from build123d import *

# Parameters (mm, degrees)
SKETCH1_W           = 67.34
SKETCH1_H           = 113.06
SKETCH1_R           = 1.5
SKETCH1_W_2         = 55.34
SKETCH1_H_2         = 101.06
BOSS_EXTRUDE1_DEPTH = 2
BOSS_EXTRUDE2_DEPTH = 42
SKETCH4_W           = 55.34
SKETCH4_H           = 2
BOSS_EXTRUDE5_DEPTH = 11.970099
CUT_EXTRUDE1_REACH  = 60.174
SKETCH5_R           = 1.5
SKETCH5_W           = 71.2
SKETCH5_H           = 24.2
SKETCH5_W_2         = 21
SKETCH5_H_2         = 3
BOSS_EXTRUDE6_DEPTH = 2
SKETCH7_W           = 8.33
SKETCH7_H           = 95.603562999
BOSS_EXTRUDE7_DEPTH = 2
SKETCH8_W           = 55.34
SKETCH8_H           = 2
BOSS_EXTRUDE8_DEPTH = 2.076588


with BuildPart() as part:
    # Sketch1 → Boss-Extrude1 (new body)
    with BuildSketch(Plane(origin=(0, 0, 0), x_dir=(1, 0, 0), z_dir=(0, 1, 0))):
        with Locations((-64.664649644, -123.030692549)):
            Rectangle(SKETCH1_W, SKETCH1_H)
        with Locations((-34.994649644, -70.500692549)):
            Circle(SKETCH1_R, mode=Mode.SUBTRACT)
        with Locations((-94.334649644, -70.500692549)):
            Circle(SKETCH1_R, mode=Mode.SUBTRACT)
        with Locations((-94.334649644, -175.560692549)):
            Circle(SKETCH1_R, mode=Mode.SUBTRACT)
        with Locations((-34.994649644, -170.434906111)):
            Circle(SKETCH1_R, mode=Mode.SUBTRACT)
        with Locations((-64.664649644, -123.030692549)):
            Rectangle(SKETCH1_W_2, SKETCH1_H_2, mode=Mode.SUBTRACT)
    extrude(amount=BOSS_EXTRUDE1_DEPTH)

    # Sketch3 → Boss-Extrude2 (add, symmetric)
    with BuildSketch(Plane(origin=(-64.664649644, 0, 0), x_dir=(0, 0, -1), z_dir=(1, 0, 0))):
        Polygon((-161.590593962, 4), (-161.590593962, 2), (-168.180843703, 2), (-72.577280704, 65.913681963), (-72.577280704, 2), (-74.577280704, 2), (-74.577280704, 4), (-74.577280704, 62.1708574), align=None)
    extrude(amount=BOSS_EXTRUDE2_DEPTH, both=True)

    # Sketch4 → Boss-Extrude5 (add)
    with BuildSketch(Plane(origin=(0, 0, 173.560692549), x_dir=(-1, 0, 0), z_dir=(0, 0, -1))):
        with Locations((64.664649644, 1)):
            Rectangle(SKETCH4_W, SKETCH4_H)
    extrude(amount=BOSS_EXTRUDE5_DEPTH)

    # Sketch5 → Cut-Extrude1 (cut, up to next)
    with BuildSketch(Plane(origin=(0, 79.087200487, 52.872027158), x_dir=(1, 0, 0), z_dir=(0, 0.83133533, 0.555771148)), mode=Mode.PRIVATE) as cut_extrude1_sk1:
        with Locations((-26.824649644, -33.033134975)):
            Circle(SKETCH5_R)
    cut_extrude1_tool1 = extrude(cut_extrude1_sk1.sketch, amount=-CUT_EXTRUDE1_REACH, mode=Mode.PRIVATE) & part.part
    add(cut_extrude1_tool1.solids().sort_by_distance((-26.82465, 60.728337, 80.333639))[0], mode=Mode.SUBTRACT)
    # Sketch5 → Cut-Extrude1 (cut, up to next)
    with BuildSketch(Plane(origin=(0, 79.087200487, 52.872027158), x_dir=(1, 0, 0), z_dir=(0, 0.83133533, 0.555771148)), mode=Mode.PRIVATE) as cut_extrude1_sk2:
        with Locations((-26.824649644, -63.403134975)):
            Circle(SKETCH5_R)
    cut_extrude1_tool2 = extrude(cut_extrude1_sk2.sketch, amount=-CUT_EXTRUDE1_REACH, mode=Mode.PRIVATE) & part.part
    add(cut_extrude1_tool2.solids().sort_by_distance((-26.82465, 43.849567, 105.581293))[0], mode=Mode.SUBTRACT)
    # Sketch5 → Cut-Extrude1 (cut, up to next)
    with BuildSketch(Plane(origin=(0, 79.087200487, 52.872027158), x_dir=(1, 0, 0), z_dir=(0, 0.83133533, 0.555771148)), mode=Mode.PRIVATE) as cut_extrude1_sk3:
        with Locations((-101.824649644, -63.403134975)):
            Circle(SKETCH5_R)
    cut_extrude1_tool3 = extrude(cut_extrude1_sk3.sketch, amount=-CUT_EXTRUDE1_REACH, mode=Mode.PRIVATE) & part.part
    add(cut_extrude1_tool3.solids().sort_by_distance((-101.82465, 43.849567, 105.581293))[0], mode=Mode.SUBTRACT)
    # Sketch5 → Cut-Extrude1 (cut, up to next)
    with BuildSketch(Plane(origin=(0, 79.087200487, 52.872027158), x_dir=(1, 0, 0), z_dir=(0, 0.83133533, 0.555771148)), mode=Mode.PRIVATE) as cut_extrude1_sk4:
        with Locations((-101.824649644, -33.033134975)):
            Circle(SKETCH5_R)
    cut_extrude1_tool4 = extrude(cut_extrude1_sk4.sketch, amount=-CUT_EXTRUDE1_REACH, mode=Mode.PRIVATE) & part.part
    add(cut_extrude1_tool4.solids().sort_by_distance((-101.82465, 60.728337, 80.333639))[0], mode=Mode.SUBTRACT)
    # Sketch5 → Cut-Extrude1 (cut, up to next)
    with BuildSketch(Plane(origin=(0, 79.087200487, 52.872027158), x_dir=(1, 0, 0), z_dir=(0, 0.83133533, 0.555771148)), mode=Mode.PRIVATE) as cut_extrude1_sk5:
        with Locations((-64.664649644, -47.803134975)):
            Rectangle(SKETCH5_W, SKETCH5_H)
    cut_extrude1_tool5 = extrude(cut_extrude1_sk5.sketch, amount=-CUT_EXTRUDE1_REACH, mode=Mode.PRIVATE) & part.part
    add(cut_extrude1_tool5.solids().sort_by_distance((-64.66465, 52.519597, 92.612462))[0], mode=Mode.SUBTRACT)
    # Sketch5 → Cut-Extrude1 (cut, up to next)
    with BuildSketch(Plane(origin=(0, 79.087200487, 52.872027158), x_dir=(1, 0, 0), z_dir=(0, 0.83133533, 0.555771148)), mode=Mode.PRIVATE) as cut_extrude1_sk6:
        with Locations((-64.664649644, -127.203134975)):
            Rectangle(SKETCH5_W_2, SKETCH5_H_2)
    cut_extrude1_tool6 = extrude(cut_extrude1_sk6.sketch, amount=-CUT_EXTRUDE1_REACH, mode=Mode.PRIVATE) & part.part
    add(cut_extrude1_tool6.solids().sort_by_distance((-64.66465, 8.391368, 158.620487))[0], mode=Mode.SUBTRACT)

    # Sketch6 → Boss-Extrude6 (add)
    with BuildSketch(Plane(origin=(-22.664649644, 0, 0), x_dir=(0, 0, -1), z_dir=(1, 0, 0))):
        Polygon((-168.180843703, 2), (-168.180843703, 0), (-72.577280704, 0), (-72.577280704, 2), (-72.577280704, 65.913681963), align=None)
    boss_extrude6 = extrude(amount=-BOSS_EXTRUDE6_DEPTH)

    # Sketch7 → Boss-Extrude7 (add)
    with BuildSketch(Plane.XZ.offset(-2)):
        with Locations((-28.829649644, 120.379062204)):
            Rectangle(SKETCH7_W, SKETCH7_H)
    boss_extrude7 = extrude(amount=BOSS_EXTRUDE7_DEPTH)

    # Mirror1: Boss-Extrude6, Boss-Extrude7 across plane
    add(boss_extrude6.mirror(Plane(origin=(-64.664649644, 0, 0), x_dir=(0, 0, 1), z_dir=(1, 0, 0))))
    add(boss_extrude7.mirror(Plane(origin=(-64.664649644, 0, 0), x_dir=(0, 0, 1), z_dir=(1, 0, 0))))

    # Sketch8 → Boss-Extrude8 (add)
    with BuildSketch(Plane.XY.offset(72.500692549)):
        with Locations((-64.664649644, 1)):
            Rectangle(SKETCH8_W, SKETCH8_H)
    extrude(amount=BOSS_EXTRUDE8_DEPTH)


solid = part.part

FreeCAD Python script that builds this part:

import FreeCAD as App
import Part
import Sketcher
from FreeCAD import Vector
Q = App.Units.Quantity

doc = App.newDocument("Part")
body = doc.addObject("PartDesign::Body", "Body")

# Sketch on XZ plane
sketch1 = doc.addObject("Sketcher::SketchObject", "Sketch")
body.addObject(sketch1)
sketch1.AttachmentSupport = (doc.XZ_Plane, [""])
sketch1.MapMode = "FlatFace"
sketch1.addGeometry(Part.LineSegment(Vector(-98.3, 66.5, 0), Vector(-98.3, 179.6, 0)), False)
sketch1.addGeometry(Part.LineSegment(Vector(-98.3, 179.6, 0), Vector(-31, 179.6, 0)), False)
sketch1.addGeometry(Part.LineSegment(Vector(-31, 179.6, 0), Vector(-31, 66.5, 0)), False)
sketch1.addGeometry(Part.LineSegment(Vector(-31, 66.5, 0), Vector(-98.3, 66.5, 0)), False)
sketch1.addGeometry(Part.Circle(Vector(-94.3, 175.6, 0), Vector(0, 0, 1), 1.5), False)
sketch1.addGeometry(Part.Circle(Vector(-35, 170.4, 0), Vector(0, 0, 1), 1.5), False)
sketch1.addGeometry(Part.Circle(Vector(-94.3, 70.5, 0), Vector(0, 0, 1), 1.5), False)
sketch1.addGeometry(Part.LineSegment(Vector(-37, 173.6, 0), Vector(-92.3, 173.6, 0)), False)
sketch1.addGeometry(Part.LineSegment(Vector(-92.3, 173.6, 0), Vector(-92.3, 72.5, 0)), False)
sketch1.addGeometry(Part.LineSegment(Vector(-92.3, 72.5, 0), Vector(-37, 72.5, 0)), False)
sketch1.addGeometry(Part.LineSegment(Vector(-37, 72.5, 0), Vector(-37, 173.6, 0)), False)
sketch1.addGeometry(Part.Circle(Vector(-35, 70.5, 0), Vector(0, 0, 1), 1.5), False)
sketch1.addConstraint(Sketcher.Constraint("Coincident", 0, 2, 1, 1))
sketch1.addConstraint(Sketcher.Constraint("Coincident", 1, 2, 2, 1))
sketch1.addConstraint(Sketcher.Constraint("Coincident", 2, 2, 3, 1))
sketch1.addConstraint(Sketcher.Constraint("Coincident", 3, 2, 0, 1))
sketch1.addConstraint(Sketcher.Constraint("Coincident", 7, 2, 8, 1))
sketch1.addConstraint(Sketcher.Constraint("Coincident", 8, 2, 9, 1))
sketch1.addConstraint(Sketcher.Constraint("Coincident", 9, 2, 10, 1))
sketch1.addConstraint(Sketcher.Constraint("Coincident", 10, 2, 7, 1))
sketch1.addConstraint(Sketcher.Constraint("Vertical", 0))
sketch1.addConstraint(Sketcher.Constraint("Horizontal", 1))
sketch1.addConstraint(Sketcher.Constraint("Vertical", 2))
sketch1.addConstraint(Sketcher.Constraint("Horizontal", 3))
sketch1.addConstraint(Sketcher.Constraint("Horizontal", 7))
sketch1.addConstraint(Sketcher.Constraint("Vertical", 8))
sketch1.addConstraint(Sketcher.Constraint("Horizontal", 9))
sketch1.addConstraint(Sketcher.Constraint("Vertical", 10))
sketch1.addConstraint(Sketcher.Constraint("Equal", 4, 5))
sketch1.addConstraint(Sketcher.Constraint("Equal", 5, 6))
sketch1.addConstraint(Sketcher.Constraint("Equal", 6, 11))
sketch1.addConstraint(Sketcher.Constraint("Horizontal", 6, 3, 11, 3))
sketch1.addConstraint(Sketcher.Constraint("Vertical", 4, 3, 6, 3))
sketch1.addConstraint(Sketcher.Constraint("Vertical", 5, 3, 11, 3))
sketch1.addConstraint(Sketcher.Constraint("Diameter", 4, Q("3 mm")))
sketch1.addConstraint(Sketcher.Constraint("DistanceX", 0, 2, 4, 3, Q("4 mm")))
sketch1.addConstraint(Sketcher.Constraint("DistanceY", 4, 3, 0, 2, Q("4 mm")))
sketch1.addConstraint(Sketcher.Constraint("DistanceX", 5, 3, 1, 2, Q("4 mm")))
sketch1.addConstraint(Sketcher.Constraint("DistanceY", 2, 2, 11, 3, Q("4 mm")))
sketch1.addConstraint(Sketcher.Constraint("DistanceX", 4, 3, 7, 2, Q("2 mm")))
sketch1.addConstraint(Sketcher.Constraint("DistanceY", 7, 2, 4, 3, Q("2 mm")))
sketch1.addConstraint(Sketcher.Constraint("DistanceY", 6, 3, 8, 2, Q("2 mm")))
sketch1.addConstraint(Sketcher.Constraint("DistanceX", 9, 2, 11, 3, Q("2 mm")))
sketch1.addConstraint(Sketcher.Constraint("DistanceX", 1, 1, 1, 2, Q("67.34 mm")))
sketch1.addConstraint(Sketcher.Constraint("DistanceY", 0, 1, 0, 2, Q("113.06 mm")))
sketch1.addConstraint(Sketcher.Constraint("DistanceX", 4, 3, -1, 1, Q("94.33465 mm")))
sketch1.addConstraint(Sketcher.Constraint("DistanceY", -1, 1, 4, 3, Q("175.560693 mm")))
sketch1.addConstraint(Sketcher.Constraint("DistanceY", -1, 1, 5, 3, Q("170.434906 mm")))
pad1 = doc.addObject("PartDesign::Pad", "Pad")
body.addObject(pad1)
pad1.Profile = sketch1
pad1.Length = 2
pad1.Reversed = True

# Sketch on YZ plane
sketch2 = doc.addObject("Sketcher::SketchObject", "Sketch001")
body.addObject(sketch2)
sketch2.AttachmentSupport = (doc.YZ_Plane, [""])
sketch2.MapMode = "FlatFace"
sketch2.AttachmentOffset = App.Placement(Vector(0, 0, -64.66465), App.Rotation())
sketch2.addGeometry(Part.LineSegment(Vector(2, 161.6, 0), Vector(4, 161.6, 0)), False)
sketch2.addGeometry(Part.LineSegment(Vector(4, 161.6, 0), Vector(62.2, 74.6, 0)), False)
sketch2.addGeometry(Part.LineSegment(Vector(62.2, 74.6, 0), Vector(2, 74.6, 0)), False)
sketch2.addGeometry(Part.LineSegment(Vector(2, 74.6, 0), Vector(2, 72.6, 0)), False)
sketch2.addGeometry(Part.LineSegment(Vector(2, 72.6, 0), Vector(65.9, 72.6, 0)), False)
sketch2.addGeometry(Part.LineSegment(Vector(65.9, 72.6, 0), Vector(2, 168.2, 0)), False)
sketch2.addGeometry(Part.LineSegment(Vector(2, 168.2, 0), Vector(2, 161.6, 0)), False)
sketch2.addConstraint(Sketcher.Constraint("Coincident", 0, 2, 1, 1))
sketch2.addConstraint(Sketcher.Constraint("Coincident", 1, 2, 2, 1))
sketch2.addConstraint(Sketcher.Constraint("Coincident", 2, 2, 3, 1))
sketch2.addConstraint(Sketcher.Constraint("Coincident", 3, 2, 4, 1))
sketch2.addConstraint(Sketcher.Constraint("Coincident", 4, 2, 5, 1))
sketch2.addConstraint(Sketcher.Constraint("Coincident", 5, 2, 6, 1))
sketch2.addConstraint(Sketcher.Constraint("Coincident", 6, 2, 0, 1))
sketch2.addConstraint(Sketcher.Constraint("Horizontal", 0))
sketch2.addConstraint(Sketcher.Constraint("Horizontal", 2))
sketch2.addConstraint(Sketcher.Constraint("Vertical", 3))
sketch2.addConstraint(Sketcher.Constraint("Horizontal", 4))
sketch2.addConstraint(Sketcher.Constraint("Vertical", 6))
sketch2.addConstraint(Sketcher.Constraint("Parallel", 1, 5))
sketch2.addConstraint(Sketcher.Constraint("Vertical", 3, 2, 5, 2))
sketch2.addConstraint(Sketcher.Constraint("Equal", 0, 3))
sketch2.addConstraint(Sketcher.Constraint("DistanceX", 0, 1, 0, 2, Q("2 mm")))
sketch2.addConstraint(Sketcher.Constraint("Distance", 5, Q("115 mm")))
sketch2.addConstraint(Sketcher.Constraint("DistanceX", -1, 1, 0, 2, Q("4 mm")))
sketch2.addConstraint(Sketcher.Constraint("DistanceX", 4, 1, 4, 2, Q("63.913682 mm")))
sketch2.addConstraint(Sketcher.Constraint("DistanceY", 6, 2, 6, 1, Q("6.59025 mm")))
sketch2.addConstraint(Sketcher.Constraint("DistanceY", -1, 1, 1, 2, Q("74.577281 mm")))
pad2 = doc.addObject("PartDesign::Pad", "Pad001")
body.addObject(pad2)
pad2.Profile = sketch2
pad2.Length = 84
pad2.Midplane = True

# Sketch on XY plane
sketch3 = doc.addObject("Sketcher::SketchObject", "Sketch002")
body.addObject(sketch3)
sketch3.AttachmentSupport = (doc.XY_Plane, [""])
sketch3.MapMode = "FlatFace"
sketch3.AttachmentOffset = App.Placement(Vector(0, 0, 173.560693), App.Rotation())
sketch3.addGeometry(Part.LineSegment(Vector(-37, 2, 0), Vector(-37, 0, 0)), False)
sketch3.addGeometry(Part.LineSegment(Vector(-37, 0, 0), Vector(-92.3, 0, 0)), False)
sketch3.addGeometry(Part.LineSegment(Vector(-92.3, 0, 0), Vector(-92.3, 2, 0)), False)
sketch3.addGeometry(Part.LineSegment(Vector(-92.3, 2, 0), Vector(-37, 2, 0)), False)
sketch3.addConstraint(Sketcher.Constraint("Coincident", 0, 2, 1, 1))
sketch3.addConstraint(Sketcher.Constraint("Coincident", 1, 2, 2, 1))
sketch3.addConstraint(Sketcher.Constraint("Coincident", 2, 2, 3, 1))
sketch3.addConstraint(Sketcher.Constraint("Coincident", 3, 2, 0, 1))
sketch3.addConstraint(Sketcher.Constraint("Vertical", 0))
sketch3.addConstraint(Sketcher.Constraint("Horizontal", 1))
sketch3.addConstraint(Sketcher.Constraint("Vertical", 2))
sketch3.addConstraint(Sketcher.Constraint("Horizontal", 3))
sketch3.addConstraint(Sketcher.Constraint("PointOnObject", 0, 2, -1))
sketch3.addConstraint(Sketcher.Constraint("DistanceY", 0, 2, 0, 1, Q("2 mm")))
sketch3.addConstraint(Sketcher.Constraint("DistanceX", 1, 2, 1, 1, Q("55.34 mm")))
sketch3.addConstraint(Sketcher.Constraint("DistanceX", 0, 2, -1, 1, Q("36.99465 mm")))
pad3 = doc.addObject("PartDesign::Pad", "Pad002")
body.addObject(pad3)
pad3.Profile = sketch3
pad3.Length = 11.970099
pad3.Reversed = True

# Sketch on an angled plane
sketch4 = doc.addObject("Sketcher::SketchObject", "Sketch003")
body.addObject(sketch4)
sketch4.Placement = App.Placement(Vector(0, 79.0872, 52.872027), App.Rotation(Vector(1, 0, 0), Vector(0, 0.555771148, -0.83133533), Vector(0, 0.83133533, 0.555771148), "ZXY"))
sketch4.addGeometry(Part.Circle(Vector(-26.8, -33, 0), Vector(0, 0, 1), 1.5), False)
sketch4.addConstraint(Sketcher.Constraint("Diameter", 0, Q("3 mm")))
sketch4.addConstraint(Sketcher.Constraint("DistanceX", 0, 3, -1, 1, Q("26.82465 mm")))
sketch4.addConstraint(Sketcher.Constraint("DistanceY", 0, 3, -1, 1, Q("33.033135 mm")))
pocket1 = doc.addObject("PartDesign::Pocket", "Pocket")
body.addObject(pocket1)
pocket1.Profile = sketch4
pocket1.Type = "UpToFirst"

# Sketch on an angled plane
sketch5 = doc.addObject("Sketcher::SketchObject", "Sketch004")
body.addObject(sketch5)
sketch5.Placement = App.Placement(Vector(0, 79.0872, 52.872027), App.Rotation(Vector(1, 0, 0), Vector(0, 0.555771148, -0.83133533), Vector(0, 0.83133533, 0.555771148), "ZXY"))
sketch5.addGeometry(Part.Circle(Vector(-26.8, -63.4, 0), Vector(0, 0, 1), 1.5), False)
sketch5.addConstraint(Sketcher.Constraint("Diameter", 0, Q("3 mm")))
sketch5.addConstraint(Sketcher.Constraint("DistanceX", 0, 3, -1, 1, Q("26.82465 mm")))
sketch5.addConstraint(Sketcher.Constraint("DistanceY", 0, 3, -1, 1, Q("63.403135 mm")))
pocket2 = doc.addObject("PartDesign::Pocket", "Pocket001")
body.addObject(pocket2)
pocket2.Profile = sketch5
pocket2.Type = "UpToFirst"

# Sketch on an angled plane
sketch6 = doc.addObject("Sketcher::SketchObject", "Sketch005")
body.addObject(sketch6)
sketch6.Placement = App.Placement(Vector(0, 79.0872, 52.872027), App.Rotation(Vector(1, 0, 0), Vector(0, 0.555771148, -0.83133533), Vector(0, 0.83133533, 0.555771148), "ZXY"))
sketch6.addGeometry(Part.Circle(Vector(-101.8, -63.4, 0), Vector(0, 0, 1), 1.5), False)
sketch6.addConstraint(Sketcher.Constraint("Diameter", 0, Q("3 mm")))
sketch6.addConstraint(Sketcher.Constraint("DistanceX", 0, 3, -1, 1, Q("101.82465 mm")))
sketch6.addConstraint(Sketcher.Constraint("DistanceY", 0, 3, -1, 1, Q("63.403135 mm")))
pocket3 = doc.addObject("PartDesign::Pocket", "Pocket002")
body.addObject(pocket3)
pocket3.Profile = sketch6
pocket3.Type = "UpToFirst"

# Sketch on an angled plane
sketch7 = doc.addObject("Sketcher::SketchObject", "Sketch006")
body.addObject(sketch7)
sketch7.Placement = App.Placement(Vector(0, 79.0872, 52.872027), App.Rotation(Vector(1, 0, 0), Vector(0, 0.555771148, -0.83133533), Vector(0, 0.83133533, 0.555771148), "ZXY"))
sketch7.addGeometry(Part.Circle(Vector(-101.8, -33, 0), Vector(0, 0, 1), 1.5), False)
sketch7.addConstraint(Sketcher.Constraint("Diameter", 0, Q("3 mm")))
sketch7.addConstraint(Sketcher.Constraint("DistanceX", 0, 3, -1, 1, Q("101.82465 mm")))
sketch7.addConstraint(Sketcher.Constraint("DistanceY", 0, 3, -1, 1, Q("33.033135 mm")))
pocket4 = doc.addObject("PartDesign::Pocket", "Pocket003")
body.addObject(pocket4)
pocket4.Profile = sketch7
pocket4.Type = "UpToFirst"

# Sketch on an angled plane
sketch8 = doc.addObject("Sketcher::SketchObject", "Sketch007")
body.addObject(sketch8)
sketch8.Placement = App.Placement(Vector(0, 79.0872, 52.872027), App.Rotation(Vector(1, 0, 0), Vector(0, 0.555771148, -0.83133533), Vector(0, 0.83133533, 0.555771148), "ZXY"))
sketch8.addGeometry(Part.LineSegment(Vector(-100, -36, 0), Vector(-100, -60, 0)), False)
sketch8.addGeometry(Part.LineSegment(Vector(-100, -60, 0), Vector(-29, -60, 0)), False)
sketch8.addGeometry(Part.LineSegment(Vector(-29, -60, 0), Vector(-29, -36, 0)), False)
sketch8.addGeometry(Part.LineSegment(Vector(-29, -36, 0), Vector(-100, -36, 0)), False)
sketch8.addConstraint(Sketcher.Constraint("Coincident", 0, 2, 1, 1))
sketch8.addConstraint(Sketcher.Constraint("Coincident", 1, 2, 2, 1))
sketch8.addConstraint(Sketcher.Constraint("Coincident", 2, 2, 3, 1))
sketch8.addConstraint(Sketcher.Constraint("Coincident", 3, 2, 0, 1))
sketch8.addConstraint(Sketcher.Constraint("Vertical", 0))
sketch8.addConstraint(Sketcher.Constraint("Horizontal", 1))
sketch8.addConstraint(Sketcher.Constraint("Vertical", 2))
sketch8.addConstraint(Sketcher.Constraint("Horizontal", 3))
sketch8.addConstraint(Sketcher.Constraint("DistanceX", 1, 1, 1, 2, Q("71.2 mm")))
sketch8.addConstraint(Sketcher.Constraint("DistanceY", 0, 2, 0, 1, Q("24.2 mm")))
sketch8.addConstraint(Sketcher.Constraint("DistanceX", 0, 2, -1, 1, Q("100.26465 mm")))
sketch8.addConstraint(Sketcher.Constraint("DistanceY", 0, 2, -1, 1, Q("59.903135 mm")))
pocket5 = doc.addObject("PartDesign::Pocket", "Pocket004")
body.addObject(pocket5)
pocket5.Profile = sketch8
pocket5.Type = "UpToFirst"

# Sketch on an angled plane
sketch9 = doc.addObject("Sketcher::SketchObject", "Sketch008")
body.addObject(sketch9)
sketch9.Placement = App.Placement(Vector(0, 79.0872, 52.872027), App.Rotation(Vector(1, 0, 0), Vector(0, 0.555771148, -0.83133533), Vector(0, 0.83133533, 0.555771148), "ZXY"))
sketch9.addGeometry(Part.LineSegment(Vector(-75.2, -125.7, 0), Vector(-75.2, -128.7, 0)), False)
sketch9.addGeometry(Part.LineSegment(Vector(-75.2, -128.7, 0), Vector(-54.2, -128.7, 0)), False)
sketch9.addGeometry(Part.LineSegment(Vector(-54.2, -128.7, 0), Vector(-54.2, -125.7, 0)), False)
sketch9.addGeometry(Part.LineSegment(Vector(-54.2, -125.7, 0), Vector(-75.2, -125.7, 0)), False)
sketch9.addConstraint(Sketcher.Constraint("Coincident", 0, 2, 1, 1))
sketch9.addConstraint(Sketcher.Constraint("Coincident", 1, 2, 2, 1))
sketch9.addConstraint(Sketcher.Constraint("Coincident", 2, 2, 3, 1))
sketch9.addConstraint(Sketcher.Constraint("Coincident", 3, 2, 0, 1))
sketch9.addConstraint(Sketcher.Constraint("Vertical", 0))
sketch9.addConstraint(Sketcher.Constraint("Horizontal", 1))
sketch9.addConstraint(Sketcher.Constraint("Vertical", 2))
sketch9.addConstraint(Sketcher.Constraint("Horizontal", 3))
sketch9.addConstraint(Sketcher.Constraint("DistanceX", 1, 1, 1, 2, Q("21 mm")))
sketch9.addConstraint(Sketcher.Constraint("DistanceY", 0, 2, 0, 1, Q("3 mm")))
sketch9.addConstraint(Sketcher.Constraint("DistanceX", 0, 2, -1, 1, Q("75.16465 mm")))
sketch9.addConstraint(Sketcher.Constraint("DistanceY", 0, 2, -1, 1, Q("128.703135 mm")))
pocket6 = doc.addObject("PartDesign::Pocket", "Pocket005")
body.addObject(pocket6)
pocket6.Profile = sketch9
pocket6.Type = "UpToFirst"

# Sketch on YZ plane
sketch10 = doc.addObject("Sketcher::SketchObject", "Sketch009")
body.addObject(sketch10)
sketch10.AttachmentSupport = (doc.YZ_Plane, [""])
sketch10.MapMode = "FlatFace"
sketch10.AttachmentOffset = App.Placement(Vector(0, 0, -22.66465), App.Rotation())
sketch10.addGeometry(Part.LineSegment(Vector(2, 168.2, 0), Vector(0, 168.2, 0)), False)
sketch10.addGeometry(Part.LineSegment(Vector(0, 168.2, 0), Vector(0, 72.6, 0)), False)
sketch10.addGeometry(Part.LineSegment(Vector(0, 72.6, 0), Vector(65.9, 72.6, 0)), False)
sketch10.addGeometry(Part.LineSegment(Vector(65.9, 72.6, 0), Vector(2, 168.2, 0)), False)
sketch10.addConstraint(Sketcher.Constraint("Coincident", 0, 2, 1, 1))
sketch10.addConstraint(Sketcher.Constraint("Coincident", 1, 2, 2, 1))
sketch10.addConstraint(Sketcher.Constraint("Coincident", 2, 2, 3, 1))
sketch10.addConstraint(Sketcher.Constraint("Coincident", 3, 2, 0, 1))
sketch10.addConstraint(Sketcher.Constraint("Horizontal", 0))
sketch10.addConstraint(Sketcher.Constraint("Vertical", 1))
sketch10.addConstraint(Sketcher.Constraint("Horizontal", 2))
sketch10.addConstraint(Sketcher.Constraint("PointOnObject", 0, 2, -2))
sketch10.addConstraint(Sketcher.Constraint("DistanceX", 0, 2, 0, 1, Q("2 mm")))
sketch10.addConstraint(Sketcher.Constraint("Distance", 3, Q("115 mm")))
sketch10.addConstraint(Sketcher.Constraint("DistanceX", 2, 1, 2, 2, Q("65.913682 mm")))
sketch10.addConstraint(Sketcher.Constraint("DistanceY", -1, 1, 1, 2, Q("72.577281 mm")))
pad4 = doc.addObject("PartDesign::Pad", "Pad003")
body.addObject(pad4)
pad4.Profile = sketch10
pad4.Length = 2
pad4.Reversed = True

# Sketch on XZ plane
sketch11 = doc.addObject("Sketcher::SketchObject", "Sketch010")
body.addObject(sketch11)
sketch11.AttachmentSupport = (doc.XZ_Plane, [""])
sketch11.MapMode = "FlatFace"
sketch11.AttachmentOffset = App.Placement(Vector(0, 0, -2), App.Rotation())
sketch11.addGeometry(Part.LineSegment(Vector(-33, 168, 0), Vector(-33, 73, 0)), False)
sketch11.addGeometry(Part.LineSegment(Vector(-33, 73, 0), Vector(-25, 73, 0)), False)
sketch11.addGeometry(Part.LineSegment(Vector(-25, 73, 0), Vector(-25, 168, 0)), False)
sketch11.addGeometry(Part.LineSegment(Vector(-25, 168, 0), Vector(-33, 168, 0)), False)
sketch11.addConstraint(Sketcher.Constraint("Coincident", 0, 2, 1, 1))
sketch11.addConstraint(Sketcher.Constraint("Coincident", 1, 2, 2, 1))
sketch11.addConstraint(Sketcher.Constraint("Coincident", 2, 2, 3, 1))
sketch11.addConstraint(Sketcher.Constraint("Coincident", 3, 2, 0, 1))
sketch11.addConstraint(Sketcher.Constraint("Vertical", 0))
sketch11.addConstraint(Sketcher.Constraint("Horizontal", 1))
sketch11.addConstraint(Sketcher.Constraint("Vertical", 2))
sketch11.addConstraint(Sketcher.Constraint("Horizontal", 3))
sketch11.addConstraint(Sketcher.Constraint("DistanceX", 1, 1, 1, 2, Q("8.33 mm")))
sketch11.addConstraint(Sketcher.Constraint("DistanceY", 0, 2, 0, 1, Q("95.603563 mm")))
sketch11.addConstraint(Sketcher.Constraint("DistanceX", 0, 2, -1, 1, Q("32.99465 mm")))
sketch11.addConstraint(Sketcher.Constraint("DistanceY", -1, 1, 0, 2, Q("72.577281 mm")))
pad5 = doc.addObject("PartDesign::Pad", "Pad004")
body.addObject(pad5)
pad5.Profile = sketch11
pad5.Length = 2
doc.recompute()

datumplane = doc.addObject("PartDesign::Plane", "DatumPlane")
body.addObject(datumplane)
datumplane.AttachmentSupport = (doc.YZ_Plane, [""])
datumplane.MapMode = "FlatFace"
datumplane.AttachmentOffset = App.Placement(Vector(0, 0, -64.66465), App.Rotation())
mirrored = doc.addObject("PartDesign::Mirrored", "Mirrored")
body.addObject(mirrored)
mirrored.Originals = [pad4, pad5]
mirrored.MirrorPlane = (datumplane, [""])
body.Tip = mirrored

# Sketch on XY plane
sketch12 = doc.addObject("Sketcher::SketchObject", "Sketch011")
body.addObject(sketch12)
sketch12.AttachmentSupport = (doc.XY_Plane, [""])
sketch12.MapMode = "FlatFace"
sketch12.AttachmentOffset = App.Placement(Vector(0, 0, 72.500693), App.Rotation())
sketch12.addGeometry(Part.LineSegment(Vector(-92.3, 2, 0), Vector(-92.3, 0, 0)), False)
sketch12.addGeometry(Part.LineSegment(Vector(-92.3, 0, 0), Vector(-37, 0, 0)), False)
sketch12.addGeometry(Part.LineSegment(Vector(-37, 0, 0), Vector(-37, 2, 0)), False)
sketch12.addGeometry(Part.LineSegment(Vector(-37, 2, 0), Vector(-92.3, 2, 0)), False)
sketch12.addConstraint(Sketcher.Constraint("Coincident", 0, 2, 1, 1))
sketch12.addConstraint(Sketcher.Constraint("Coincident", 1, 2, 2, 1))
sketch12.addConstraint(Sketcher.Constraint("Coincident", 2, 2, 3, 1))
sketch12.addConstraint(Sketcher.Constraint("Coincident", 3, 2, 0, 1))
sketch12.addConstraint(Sketcher.Constraint("Vertical", 0))
sketch12.addConstraint(Sketcher.Constraint("Horizontal", 1))
sketch12.addConstraint(Sketcher.Constraint("Vertical", 2))
sketch12.addConstraint(Sketcher.Constraint("Horizontal", 3))
sketch12.addConstraint(Sketcher.Constraint("PointOnObject", 0, 2, -1))
sketch12.addConstraint(Sketcher.Constraint("DistanceY", 0, 2, 0, 1, Q("2 mm")))
sketch12.addConstraint(Sketcher.Constraint("DistanceX", 1, 1, 1, 2, Q("55.34 mm")))
sketch12.addConstraint(Sketcher.Constraint("DistanceX", 0, 2, -1, 1, Q("92.33465 mm")))
pad6 = doc.addObject("PartDesign::Pad", "Pad005")
body.addObject(pad6)
pad6.Profile = sketch12
pad6.Length = 2.076588

doc.recompute()
